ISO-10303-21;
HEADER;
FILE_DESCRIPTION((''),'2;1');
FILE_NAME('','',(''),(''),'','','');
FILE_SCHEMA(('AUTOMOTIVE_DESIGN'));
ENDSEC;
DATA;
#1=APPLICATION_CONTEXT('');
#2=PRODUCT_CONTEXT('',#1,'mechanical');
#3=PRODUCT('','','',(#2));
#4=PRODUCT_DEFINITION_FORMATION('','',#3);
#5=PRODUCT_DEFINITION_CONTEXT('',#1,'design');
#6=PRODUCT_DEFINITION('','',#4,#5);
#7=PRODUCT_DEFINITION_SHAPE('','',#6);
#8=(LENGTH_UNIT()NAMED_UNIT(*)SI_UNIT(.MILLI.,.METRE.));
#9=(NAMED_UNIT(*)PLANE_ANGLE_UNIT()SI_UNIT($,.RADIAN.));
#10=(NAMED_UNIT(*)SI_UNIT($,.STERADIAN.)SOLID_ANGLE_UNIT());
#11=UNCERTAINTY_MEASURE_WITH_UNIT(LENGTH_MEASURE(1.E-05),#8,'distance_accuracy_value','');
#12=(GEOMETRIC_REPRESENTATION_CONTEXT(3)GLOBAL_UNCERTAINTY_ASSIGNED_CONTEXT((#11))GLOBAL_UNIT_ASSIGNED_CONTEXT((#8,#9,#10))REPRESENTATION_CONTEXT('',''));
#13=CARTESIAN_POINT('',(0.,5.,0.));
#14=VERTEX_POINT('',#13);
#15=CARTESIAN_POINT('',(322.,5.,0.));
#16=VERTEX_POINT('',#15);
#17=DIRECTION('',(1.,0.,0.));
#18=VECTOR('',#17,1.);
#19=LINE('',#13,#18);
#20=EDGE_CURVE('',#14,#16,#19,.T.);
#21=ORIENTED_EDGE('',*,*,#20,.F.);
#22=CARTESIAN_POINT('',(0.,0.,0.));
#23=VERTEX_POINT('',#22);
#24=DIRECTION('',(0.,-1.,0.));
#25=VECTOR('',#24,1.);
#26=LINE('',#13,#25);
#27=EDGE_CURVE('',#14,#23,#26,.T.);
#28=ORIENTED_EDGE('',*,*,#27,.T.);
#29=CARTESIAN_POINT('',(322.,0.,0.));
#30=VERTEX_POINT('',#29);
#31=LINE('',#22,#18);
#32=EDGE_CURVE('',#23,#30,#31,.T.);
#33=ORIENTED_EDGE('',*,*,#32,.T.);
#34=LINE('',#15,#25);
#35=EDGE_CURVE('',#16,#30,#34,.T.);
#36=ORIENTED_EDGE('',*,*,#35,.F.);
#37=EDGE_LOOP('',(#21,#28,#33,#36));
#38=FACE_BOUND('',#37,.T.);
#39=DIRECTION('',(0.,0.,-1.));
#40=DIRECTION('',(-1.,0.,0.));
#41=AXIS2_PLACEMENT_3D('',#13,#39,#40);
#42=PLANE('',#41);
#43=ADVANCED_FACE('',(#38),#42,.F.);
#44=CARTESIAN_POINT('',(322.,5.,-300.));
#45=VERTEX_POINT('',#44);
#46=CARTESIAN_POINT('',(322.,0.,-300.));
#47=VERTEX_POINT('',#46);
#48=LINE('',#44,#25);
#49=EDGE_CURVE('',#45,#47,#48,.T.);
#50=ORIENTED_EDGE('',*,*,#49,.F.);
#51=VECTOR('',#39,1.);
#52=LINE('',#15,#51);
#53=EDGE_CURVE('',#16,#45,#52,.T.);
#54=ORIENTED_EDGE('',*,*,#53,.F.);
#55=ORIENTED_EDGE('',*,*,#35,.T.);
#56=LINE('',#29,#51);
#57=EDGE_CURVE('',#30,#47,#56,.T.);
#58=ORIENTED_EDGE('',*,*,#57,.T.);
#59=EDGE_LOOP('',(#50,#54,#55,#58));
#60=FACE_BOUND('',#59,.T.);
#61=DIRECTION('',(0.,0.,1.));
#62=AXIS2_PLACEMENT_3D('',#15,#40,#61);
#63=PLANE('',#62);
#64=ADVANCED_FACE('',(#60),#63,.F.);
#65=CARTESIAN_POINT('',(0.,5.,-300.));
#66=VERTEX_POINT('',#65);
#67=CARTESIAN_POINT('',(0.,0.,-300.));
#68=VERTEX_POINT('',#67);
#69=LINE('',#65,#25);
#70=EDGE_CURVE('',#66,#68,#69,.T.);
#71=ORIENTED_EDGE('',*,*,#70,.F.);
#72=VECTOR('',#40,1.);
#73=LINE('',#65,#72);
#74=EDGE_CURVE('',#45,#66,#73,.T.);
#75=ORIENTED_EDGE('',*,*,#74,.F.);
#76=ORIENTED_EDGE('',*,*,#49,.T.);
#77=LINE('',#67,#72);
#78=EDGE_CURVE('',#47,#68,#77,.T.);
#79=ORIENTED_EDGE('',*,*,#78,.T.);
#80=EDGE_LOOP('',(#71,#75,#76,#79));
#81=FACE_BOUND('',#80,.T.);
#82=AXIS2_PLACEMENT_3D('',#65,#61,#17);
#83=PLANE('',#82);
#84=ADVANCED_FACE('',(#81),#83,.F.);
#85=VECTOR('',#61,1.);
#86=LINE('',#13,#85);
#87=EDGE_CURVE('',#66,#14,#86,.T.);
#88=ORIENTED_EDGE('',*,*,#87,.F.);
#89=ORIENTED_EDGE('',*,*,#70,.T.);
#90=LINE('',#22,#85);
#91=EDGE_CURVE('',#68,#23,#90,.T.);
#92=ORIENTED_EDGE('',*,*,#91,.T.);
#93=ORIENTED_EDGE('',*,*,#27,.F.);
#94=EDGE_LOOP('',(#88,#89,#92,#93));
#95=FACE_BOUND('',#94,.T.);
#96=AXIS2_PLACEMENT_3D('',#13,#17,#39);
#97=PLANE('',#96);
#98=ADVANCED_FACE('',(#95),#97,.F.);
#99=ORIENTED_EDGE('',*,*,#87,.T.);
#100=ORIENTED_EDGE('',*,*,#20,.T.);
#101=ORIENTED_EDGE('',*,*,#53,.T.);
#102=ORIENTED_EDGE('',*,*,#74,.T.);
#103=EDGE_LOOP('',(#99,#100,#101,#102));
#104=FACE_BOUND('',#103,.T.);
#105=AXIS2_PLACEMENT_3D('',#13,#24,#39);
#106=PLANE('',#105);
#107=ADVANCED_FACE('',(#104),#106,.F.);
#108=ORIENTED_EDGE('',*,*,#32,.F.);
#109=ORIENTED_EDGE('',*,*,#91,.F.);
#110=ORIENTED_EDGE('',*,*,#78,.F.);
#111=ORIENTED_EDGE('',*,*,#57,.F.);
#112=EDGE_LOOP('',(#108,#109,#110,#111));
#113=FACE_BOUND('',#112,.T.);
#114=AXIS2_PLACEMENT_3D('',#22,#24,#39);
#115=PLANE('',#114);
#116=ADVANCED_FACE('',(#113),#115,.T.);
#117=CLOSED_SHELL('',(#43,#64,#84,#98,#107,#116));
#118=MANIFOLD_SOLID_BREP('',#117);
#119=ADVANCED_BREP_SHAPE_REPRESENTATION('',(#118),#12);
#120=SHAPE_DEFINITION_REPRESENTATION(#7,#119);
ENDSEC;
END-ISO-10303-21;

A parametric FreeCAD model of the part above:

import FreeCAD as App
import Part
import Sketcher
from FreeCAD import Vector

doc = App.newDocument("Part")
body = doc.addObject("PartDesign::Body", "Body")

# Sketch on XZ plane
sketch1 = body.newObject("Sketcher::SketchObject", "Sketch")
sketch1.AttachmentSupport = (doc.getObject("XZ_Plane"), [""])
sketch1.MapMode = "FlatFace"
sketch1.addGeometry(Part.LineSegment(Vector(0, -300, 0), Vector(0, 0, 0)), False)
sketch1.addGeometry(Part.LineSegment(Vector(0, 0, 0), Vector(322, 0, 0)), False)
sketch1.addGeometry(Part.LineSegment(Vector(322, 0, 0), Vector(322, -300, 0)), False)
sketch1.addGeometry(Part.LineSegment(Vector(322, -300, 0), Vector(0, -300, 0)), False)
sketch1.addConstraint(Sketcher.Constraint("Coincident", 0, 2, 1, 1))
sketch1.addConstraint(Sketcher.Constraint("Coincident", 1, 2, 2, 1))
sketch1.addConstraint(Sketcher.Constraint("Coincident", 2, 2, 3, 1))
sketch1.addConstraint(Sketcher.Constraint("Coincident", 3, 2, 0, 1))
sketch1.addConstraint(Sketcher.Constraint("Vertical", 0))
sketch1.addConstraint(Sketcher.Constraint("Horizontal", 1))
sketch1.addConstraint(Sketcher.Constraint("Vertical", 2))
sketch1.addConstraint(Sketcher.Constraint("Horizontal", 3))
sketch1.addConstraint(Sketcher.Constraint("Coincident", 0, 2, -1, 1))
sketch1.addConstraint(Sketcher.Constraint("DistanceX", 1, 1, 1, 2, 322.0))
sketch1.addConstraint(Sketcher.Constraint("DistanceY", 0, 1, 0, 2, 300.0))
pad1 = body.newObject("PartDesign::Pad", "Pad")
pad1.Profile = sketch1
pad1.Length = 5
pad1.Reversed = True

doc.recompute()
